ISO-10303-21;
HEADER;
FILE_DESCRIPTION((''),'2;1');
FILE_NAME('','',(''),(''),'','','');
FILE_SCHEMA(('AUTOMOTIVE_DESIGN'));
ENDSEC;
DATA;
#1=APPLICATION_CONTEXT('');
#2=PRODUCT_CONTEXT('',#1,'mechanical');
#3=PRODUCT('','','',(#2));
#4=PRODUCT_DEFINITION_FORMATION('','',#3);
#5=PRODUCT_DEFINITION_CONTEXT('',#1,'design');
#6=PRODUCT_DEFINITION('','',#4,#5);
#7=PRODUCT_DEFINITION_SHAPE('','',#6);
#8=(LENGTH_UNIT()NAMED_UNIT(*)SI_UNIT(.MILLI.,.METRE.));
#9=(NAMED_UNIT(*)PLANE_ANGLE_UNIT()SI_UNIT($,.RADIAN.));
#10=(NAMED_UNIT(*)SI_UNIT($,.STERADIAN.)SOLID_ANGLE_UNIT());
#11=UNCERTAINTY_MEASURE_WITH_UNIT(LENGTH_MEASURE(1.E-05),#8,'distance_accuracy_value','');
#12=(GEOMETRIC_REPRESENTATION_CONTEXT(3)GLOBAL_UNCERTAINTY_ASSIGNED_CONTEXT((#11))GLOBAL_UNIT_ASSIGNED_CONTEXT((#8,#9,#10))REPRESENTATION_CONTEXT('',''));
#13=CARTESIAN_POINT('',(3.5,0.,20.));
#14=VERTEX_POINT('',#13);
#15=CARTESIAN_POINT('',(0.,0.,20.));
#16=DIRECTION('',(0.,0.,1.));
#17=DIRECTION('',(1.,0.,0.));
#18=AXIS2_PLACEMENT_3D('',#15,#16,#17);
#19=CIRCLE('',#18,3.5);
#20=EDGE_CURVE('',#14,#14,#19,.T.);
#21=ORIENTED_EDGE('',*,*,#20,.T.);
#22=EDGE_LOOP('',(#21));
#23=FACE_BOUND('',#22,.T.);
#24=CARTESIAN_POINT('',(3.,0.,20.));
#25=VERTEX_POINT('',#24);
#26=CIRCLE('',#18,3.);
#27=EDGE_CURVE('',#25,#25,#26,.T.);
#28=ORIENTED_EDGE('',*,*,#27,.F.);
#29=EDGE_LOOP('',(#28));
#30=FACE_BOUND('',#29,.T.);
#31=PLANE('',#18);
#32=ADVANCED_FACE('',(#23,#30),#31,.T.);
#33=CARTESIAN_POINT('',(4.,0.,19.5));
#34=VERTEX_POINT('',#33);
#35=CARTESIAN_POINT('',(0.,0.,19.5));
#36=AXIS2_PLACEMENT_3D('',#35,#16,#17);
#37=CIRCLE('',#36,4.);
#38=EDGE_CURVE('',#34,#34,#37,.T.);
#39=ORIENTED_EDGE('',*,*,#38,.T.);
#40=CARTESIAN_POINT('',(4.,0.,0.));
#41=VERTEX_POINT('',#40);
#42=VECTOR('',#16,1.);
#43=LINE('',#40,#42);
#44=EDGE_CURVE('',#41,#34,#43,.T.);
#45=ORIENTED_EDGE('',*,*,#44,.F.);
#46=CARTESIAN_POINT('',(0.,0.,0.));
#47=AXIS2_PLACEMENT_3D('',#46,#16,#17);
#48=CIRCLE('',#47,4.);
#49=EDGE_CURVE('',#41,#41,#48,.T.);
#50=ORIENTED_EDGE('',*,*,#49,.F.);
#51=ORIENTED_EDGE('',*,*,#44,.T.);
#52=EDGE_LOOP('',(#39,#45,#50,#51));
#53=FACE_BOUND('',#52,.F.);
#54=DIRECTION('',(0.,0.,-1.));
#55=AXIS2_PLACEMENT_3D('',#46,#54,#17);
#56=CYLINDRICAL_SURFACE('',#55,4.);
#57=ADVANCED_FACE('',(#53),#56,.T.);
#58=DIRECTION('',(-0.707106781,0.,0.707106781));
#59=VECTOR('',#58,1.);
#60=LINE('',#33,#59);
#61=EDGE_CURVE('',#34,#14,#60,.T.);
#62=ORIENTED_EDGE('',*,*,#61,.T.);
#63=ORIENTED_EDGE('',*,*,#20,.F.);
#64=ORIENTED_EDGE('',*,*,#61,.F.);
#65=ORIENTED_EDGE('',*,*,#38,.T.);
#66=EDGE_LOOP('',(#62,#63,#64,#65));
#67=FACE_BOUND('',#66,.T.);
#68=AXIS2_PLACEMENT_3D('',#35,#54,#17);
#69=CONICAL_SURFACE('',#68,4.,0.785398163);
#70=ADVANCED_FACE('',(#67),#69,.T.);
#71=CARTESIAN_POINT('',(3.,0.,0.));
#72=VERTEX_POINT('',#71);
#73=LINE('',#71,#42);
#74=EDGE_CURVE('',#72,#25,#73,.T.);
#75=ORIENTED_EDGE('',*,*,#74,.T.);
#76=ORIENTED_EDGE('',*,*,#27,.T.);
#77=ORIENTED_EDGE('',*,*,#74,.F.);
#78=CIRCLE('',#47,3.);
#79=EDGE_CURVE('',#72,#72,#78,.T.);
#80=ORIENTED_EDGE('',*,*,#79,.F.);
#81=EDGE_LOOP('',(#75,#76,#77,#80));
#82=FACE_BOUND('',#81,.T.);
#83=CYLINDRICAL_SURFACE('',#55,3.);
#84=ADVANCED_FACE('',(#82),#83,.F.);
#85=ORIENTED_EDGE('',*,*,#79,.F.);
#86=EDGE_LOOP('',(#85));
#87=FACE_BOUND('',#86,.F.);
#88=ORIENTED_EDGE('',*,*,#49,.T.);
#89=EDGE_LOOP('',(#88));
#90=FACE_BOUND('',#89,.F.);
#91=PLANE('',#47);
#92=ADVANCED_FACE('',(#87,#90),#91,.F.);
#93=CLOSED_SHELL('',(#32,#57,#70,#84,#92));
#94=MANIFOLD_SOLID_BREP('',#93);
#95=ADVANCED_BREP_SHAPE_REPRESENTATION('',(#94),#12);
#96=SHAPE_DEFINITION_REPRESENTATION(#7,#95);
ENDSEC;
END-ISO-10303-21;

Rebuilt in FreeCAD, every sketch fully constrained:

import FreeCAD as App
import Part
import Sketcher
Q = App.Units.Quantity


def edges_at(feature, points):
    """Names of the edges that pass closest to the given points."""
    edges = feature.Shape.Edges
    near = lambda p: min(range(len(edges)), key=lambda i: edges[i].distToShape(Part.Vertex(*p))[0])
    return sorted({f"Edge{near(p) + 1}" for p in points})

doc = App.newDocument("Part")
body = doc.addObject("PartDesign::Body", "Body")

sketch1 = doc.addObject("Sketcher::SketchObject", "Sketch")
body.addObject(sketch1)
sketch1.AttachmentSupport = (doc.XY_Plane, [""])
sketch1.MapMode = "FlatFace"
sketch1.addGeometry([
    Part.Circle(App.Vector(0, 0, 0), App.Vector(0, 0, 1), 4),
    Part.Circle(App.Vector(0, 0, 0), App.Vector(0, 0, 1), 3),
], False)
sketch1.addConstraint([
    Sketcher.Constraint("Coincident", 0, 3, -1, 1),
    Sketcher.Constraint("Coincident", 1, 3, -1, 1),
    Sketcher.Constraint("Diameter", 0, Q("8 mm")),
    Sketcher.Constraint("Diameter", 1, Q("6 mm")),
])
pad1 = doc.addObject("PartDesign::Pad", "Pad")
body.addObject(pad1)
pad1.Profile = sketch1
pad1.Length = 20
doc.recompute()

chamfer = doc.addObject("PartDesign::Chamfer", "Chamfer")
body.addObject(chamfer)
chamfer.Base = (pad1, edges_at(pad1, [(-4, 0, 20)]))
chamfer.Size = 0.5

doc.recompute()
